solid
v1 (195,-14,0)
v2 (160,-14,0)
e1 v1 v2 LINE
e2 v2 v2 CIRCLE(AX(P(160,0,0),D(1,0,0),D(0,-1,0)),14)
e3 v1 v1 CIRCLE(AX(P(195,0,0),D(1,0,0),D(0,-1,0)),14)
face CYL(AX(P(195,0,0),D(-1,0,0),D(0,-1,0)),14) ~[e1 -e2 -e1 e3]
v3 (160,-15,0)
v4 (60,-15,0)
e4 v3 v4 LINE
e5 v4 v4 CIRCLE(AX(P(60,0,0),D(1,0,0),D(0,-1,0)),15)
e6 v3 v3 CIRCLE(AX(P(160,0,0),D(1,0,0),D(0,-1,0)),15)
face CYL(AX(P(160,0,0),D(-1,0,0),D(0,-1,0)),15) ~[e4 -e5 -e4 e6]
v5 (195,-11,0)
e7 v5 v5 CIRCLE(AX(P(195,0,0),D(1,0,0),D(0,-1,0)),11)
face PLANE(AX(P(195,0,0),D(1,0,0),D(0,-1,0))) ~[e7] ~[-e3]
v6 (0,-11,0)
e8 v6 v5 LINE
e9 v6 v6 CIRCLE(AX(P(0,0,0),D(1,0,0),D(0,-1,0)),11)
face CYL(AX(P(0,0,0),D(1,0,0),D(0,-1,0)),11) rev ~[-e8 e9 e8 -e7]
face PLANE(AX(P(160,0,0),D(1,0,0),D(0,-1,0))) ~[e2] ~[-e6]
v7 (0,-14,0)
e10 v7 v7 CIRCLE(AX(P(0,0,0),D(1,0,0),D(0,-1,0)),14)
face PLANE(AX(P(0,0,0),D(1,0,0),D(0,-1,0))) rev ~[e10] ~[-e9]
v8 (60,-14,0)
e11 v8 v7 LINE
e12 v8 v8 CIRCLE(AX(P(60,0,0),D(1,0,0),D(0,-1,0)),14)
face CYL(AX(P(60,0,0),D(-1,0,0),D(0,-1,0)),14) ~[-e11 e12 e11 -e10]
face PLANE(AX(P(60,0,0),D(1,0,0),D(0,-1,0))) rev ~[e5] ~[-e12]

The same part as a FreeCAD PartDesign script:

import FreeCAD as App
import Part
import Sketcher
from FreeCAD import Vector


def add_polygon(sketch, points):
    """Adds a closed chain of lines whose ends are joined by coincident constraints."""
    first, n = sketch.GeometryCount, len(points)
    for a, b in zip(points, points[1:] + points[:1]):
        sketch.addGeometry(Part.LineSegment(App.Vector(*a, 0), App.Vector(*b, 0)), False)
    for i in range(n):
        sketch.addConstraint(Sketcher.Constraint("Coincident", first + i, 2, first + (i + 1) % n, 1))

doc = App.newDocument("Part")
body = doc.addObject("PartDesign::Body", "Body")

# Sketch on XY plane
sketch1 = doc.addObject("Sketcher::SketchObject", "Sketch")
body.addObject(sketch1)
sketch1.AttachmentSupport = (doc.XY_Plane, [""])
sketch1.MapMode = "FlatFace"
add_polygon(sketch1, [(195, -11), (0, -11), (0, -14), (60, -14), (60, -15), (160, -15), (160, -14), (195, -14)])  # lines 0-7
sketch1.addConstraint([
    Sketcher.Constraint("Horizontal", 0),
    Sketcher.Constraint("Vertical", 1),
    Sketcher.Constraint("Horizontal", 2),
    Sketcher.Constraint("Vertical", 3),
    Sketcher.Constraint("Horizontal", 4),
    Sketcher.Constraint("Vertical", 5),
    Sketcher.Constraint("Horizontal", 6),
    Sketcher.Constraint("Vertical", 7),
    Sketcher.Constraint("PointOnObject", 0, 2, -2),
    Sketcher.Constraint("Horizontal", 2, 2, 5, 2),
    Sketcher.Constraint("DistanceX", 0, 2, 0, 1, 195.0),
    Sketcher.Constraint("DistanceX", 2, 1, 2, 2, 60.0),
    Sketcher.Constraint("DistanceX", 4, 1, 4, 2, 100.0),
    Sketcher.Constraint("DistanceY", 1, 2, 1, 1, 3.0),
    Sketcher.Constraint("DistanceY", 3, 2, 3, 1, 1.0),
    Sketcher.Constraint("DistanceY", 0, 2, -1, 1, 11.0),
])
revolution = doc.addObject("PartDesign::Revolution", "Revolution")
body.addObject(revolution)
revolution.Profile = sketch1
revolution.ReferenceAxis = (sketch1, ["H_Axis"])
revolution.Angle = 360

doc.recompute()
